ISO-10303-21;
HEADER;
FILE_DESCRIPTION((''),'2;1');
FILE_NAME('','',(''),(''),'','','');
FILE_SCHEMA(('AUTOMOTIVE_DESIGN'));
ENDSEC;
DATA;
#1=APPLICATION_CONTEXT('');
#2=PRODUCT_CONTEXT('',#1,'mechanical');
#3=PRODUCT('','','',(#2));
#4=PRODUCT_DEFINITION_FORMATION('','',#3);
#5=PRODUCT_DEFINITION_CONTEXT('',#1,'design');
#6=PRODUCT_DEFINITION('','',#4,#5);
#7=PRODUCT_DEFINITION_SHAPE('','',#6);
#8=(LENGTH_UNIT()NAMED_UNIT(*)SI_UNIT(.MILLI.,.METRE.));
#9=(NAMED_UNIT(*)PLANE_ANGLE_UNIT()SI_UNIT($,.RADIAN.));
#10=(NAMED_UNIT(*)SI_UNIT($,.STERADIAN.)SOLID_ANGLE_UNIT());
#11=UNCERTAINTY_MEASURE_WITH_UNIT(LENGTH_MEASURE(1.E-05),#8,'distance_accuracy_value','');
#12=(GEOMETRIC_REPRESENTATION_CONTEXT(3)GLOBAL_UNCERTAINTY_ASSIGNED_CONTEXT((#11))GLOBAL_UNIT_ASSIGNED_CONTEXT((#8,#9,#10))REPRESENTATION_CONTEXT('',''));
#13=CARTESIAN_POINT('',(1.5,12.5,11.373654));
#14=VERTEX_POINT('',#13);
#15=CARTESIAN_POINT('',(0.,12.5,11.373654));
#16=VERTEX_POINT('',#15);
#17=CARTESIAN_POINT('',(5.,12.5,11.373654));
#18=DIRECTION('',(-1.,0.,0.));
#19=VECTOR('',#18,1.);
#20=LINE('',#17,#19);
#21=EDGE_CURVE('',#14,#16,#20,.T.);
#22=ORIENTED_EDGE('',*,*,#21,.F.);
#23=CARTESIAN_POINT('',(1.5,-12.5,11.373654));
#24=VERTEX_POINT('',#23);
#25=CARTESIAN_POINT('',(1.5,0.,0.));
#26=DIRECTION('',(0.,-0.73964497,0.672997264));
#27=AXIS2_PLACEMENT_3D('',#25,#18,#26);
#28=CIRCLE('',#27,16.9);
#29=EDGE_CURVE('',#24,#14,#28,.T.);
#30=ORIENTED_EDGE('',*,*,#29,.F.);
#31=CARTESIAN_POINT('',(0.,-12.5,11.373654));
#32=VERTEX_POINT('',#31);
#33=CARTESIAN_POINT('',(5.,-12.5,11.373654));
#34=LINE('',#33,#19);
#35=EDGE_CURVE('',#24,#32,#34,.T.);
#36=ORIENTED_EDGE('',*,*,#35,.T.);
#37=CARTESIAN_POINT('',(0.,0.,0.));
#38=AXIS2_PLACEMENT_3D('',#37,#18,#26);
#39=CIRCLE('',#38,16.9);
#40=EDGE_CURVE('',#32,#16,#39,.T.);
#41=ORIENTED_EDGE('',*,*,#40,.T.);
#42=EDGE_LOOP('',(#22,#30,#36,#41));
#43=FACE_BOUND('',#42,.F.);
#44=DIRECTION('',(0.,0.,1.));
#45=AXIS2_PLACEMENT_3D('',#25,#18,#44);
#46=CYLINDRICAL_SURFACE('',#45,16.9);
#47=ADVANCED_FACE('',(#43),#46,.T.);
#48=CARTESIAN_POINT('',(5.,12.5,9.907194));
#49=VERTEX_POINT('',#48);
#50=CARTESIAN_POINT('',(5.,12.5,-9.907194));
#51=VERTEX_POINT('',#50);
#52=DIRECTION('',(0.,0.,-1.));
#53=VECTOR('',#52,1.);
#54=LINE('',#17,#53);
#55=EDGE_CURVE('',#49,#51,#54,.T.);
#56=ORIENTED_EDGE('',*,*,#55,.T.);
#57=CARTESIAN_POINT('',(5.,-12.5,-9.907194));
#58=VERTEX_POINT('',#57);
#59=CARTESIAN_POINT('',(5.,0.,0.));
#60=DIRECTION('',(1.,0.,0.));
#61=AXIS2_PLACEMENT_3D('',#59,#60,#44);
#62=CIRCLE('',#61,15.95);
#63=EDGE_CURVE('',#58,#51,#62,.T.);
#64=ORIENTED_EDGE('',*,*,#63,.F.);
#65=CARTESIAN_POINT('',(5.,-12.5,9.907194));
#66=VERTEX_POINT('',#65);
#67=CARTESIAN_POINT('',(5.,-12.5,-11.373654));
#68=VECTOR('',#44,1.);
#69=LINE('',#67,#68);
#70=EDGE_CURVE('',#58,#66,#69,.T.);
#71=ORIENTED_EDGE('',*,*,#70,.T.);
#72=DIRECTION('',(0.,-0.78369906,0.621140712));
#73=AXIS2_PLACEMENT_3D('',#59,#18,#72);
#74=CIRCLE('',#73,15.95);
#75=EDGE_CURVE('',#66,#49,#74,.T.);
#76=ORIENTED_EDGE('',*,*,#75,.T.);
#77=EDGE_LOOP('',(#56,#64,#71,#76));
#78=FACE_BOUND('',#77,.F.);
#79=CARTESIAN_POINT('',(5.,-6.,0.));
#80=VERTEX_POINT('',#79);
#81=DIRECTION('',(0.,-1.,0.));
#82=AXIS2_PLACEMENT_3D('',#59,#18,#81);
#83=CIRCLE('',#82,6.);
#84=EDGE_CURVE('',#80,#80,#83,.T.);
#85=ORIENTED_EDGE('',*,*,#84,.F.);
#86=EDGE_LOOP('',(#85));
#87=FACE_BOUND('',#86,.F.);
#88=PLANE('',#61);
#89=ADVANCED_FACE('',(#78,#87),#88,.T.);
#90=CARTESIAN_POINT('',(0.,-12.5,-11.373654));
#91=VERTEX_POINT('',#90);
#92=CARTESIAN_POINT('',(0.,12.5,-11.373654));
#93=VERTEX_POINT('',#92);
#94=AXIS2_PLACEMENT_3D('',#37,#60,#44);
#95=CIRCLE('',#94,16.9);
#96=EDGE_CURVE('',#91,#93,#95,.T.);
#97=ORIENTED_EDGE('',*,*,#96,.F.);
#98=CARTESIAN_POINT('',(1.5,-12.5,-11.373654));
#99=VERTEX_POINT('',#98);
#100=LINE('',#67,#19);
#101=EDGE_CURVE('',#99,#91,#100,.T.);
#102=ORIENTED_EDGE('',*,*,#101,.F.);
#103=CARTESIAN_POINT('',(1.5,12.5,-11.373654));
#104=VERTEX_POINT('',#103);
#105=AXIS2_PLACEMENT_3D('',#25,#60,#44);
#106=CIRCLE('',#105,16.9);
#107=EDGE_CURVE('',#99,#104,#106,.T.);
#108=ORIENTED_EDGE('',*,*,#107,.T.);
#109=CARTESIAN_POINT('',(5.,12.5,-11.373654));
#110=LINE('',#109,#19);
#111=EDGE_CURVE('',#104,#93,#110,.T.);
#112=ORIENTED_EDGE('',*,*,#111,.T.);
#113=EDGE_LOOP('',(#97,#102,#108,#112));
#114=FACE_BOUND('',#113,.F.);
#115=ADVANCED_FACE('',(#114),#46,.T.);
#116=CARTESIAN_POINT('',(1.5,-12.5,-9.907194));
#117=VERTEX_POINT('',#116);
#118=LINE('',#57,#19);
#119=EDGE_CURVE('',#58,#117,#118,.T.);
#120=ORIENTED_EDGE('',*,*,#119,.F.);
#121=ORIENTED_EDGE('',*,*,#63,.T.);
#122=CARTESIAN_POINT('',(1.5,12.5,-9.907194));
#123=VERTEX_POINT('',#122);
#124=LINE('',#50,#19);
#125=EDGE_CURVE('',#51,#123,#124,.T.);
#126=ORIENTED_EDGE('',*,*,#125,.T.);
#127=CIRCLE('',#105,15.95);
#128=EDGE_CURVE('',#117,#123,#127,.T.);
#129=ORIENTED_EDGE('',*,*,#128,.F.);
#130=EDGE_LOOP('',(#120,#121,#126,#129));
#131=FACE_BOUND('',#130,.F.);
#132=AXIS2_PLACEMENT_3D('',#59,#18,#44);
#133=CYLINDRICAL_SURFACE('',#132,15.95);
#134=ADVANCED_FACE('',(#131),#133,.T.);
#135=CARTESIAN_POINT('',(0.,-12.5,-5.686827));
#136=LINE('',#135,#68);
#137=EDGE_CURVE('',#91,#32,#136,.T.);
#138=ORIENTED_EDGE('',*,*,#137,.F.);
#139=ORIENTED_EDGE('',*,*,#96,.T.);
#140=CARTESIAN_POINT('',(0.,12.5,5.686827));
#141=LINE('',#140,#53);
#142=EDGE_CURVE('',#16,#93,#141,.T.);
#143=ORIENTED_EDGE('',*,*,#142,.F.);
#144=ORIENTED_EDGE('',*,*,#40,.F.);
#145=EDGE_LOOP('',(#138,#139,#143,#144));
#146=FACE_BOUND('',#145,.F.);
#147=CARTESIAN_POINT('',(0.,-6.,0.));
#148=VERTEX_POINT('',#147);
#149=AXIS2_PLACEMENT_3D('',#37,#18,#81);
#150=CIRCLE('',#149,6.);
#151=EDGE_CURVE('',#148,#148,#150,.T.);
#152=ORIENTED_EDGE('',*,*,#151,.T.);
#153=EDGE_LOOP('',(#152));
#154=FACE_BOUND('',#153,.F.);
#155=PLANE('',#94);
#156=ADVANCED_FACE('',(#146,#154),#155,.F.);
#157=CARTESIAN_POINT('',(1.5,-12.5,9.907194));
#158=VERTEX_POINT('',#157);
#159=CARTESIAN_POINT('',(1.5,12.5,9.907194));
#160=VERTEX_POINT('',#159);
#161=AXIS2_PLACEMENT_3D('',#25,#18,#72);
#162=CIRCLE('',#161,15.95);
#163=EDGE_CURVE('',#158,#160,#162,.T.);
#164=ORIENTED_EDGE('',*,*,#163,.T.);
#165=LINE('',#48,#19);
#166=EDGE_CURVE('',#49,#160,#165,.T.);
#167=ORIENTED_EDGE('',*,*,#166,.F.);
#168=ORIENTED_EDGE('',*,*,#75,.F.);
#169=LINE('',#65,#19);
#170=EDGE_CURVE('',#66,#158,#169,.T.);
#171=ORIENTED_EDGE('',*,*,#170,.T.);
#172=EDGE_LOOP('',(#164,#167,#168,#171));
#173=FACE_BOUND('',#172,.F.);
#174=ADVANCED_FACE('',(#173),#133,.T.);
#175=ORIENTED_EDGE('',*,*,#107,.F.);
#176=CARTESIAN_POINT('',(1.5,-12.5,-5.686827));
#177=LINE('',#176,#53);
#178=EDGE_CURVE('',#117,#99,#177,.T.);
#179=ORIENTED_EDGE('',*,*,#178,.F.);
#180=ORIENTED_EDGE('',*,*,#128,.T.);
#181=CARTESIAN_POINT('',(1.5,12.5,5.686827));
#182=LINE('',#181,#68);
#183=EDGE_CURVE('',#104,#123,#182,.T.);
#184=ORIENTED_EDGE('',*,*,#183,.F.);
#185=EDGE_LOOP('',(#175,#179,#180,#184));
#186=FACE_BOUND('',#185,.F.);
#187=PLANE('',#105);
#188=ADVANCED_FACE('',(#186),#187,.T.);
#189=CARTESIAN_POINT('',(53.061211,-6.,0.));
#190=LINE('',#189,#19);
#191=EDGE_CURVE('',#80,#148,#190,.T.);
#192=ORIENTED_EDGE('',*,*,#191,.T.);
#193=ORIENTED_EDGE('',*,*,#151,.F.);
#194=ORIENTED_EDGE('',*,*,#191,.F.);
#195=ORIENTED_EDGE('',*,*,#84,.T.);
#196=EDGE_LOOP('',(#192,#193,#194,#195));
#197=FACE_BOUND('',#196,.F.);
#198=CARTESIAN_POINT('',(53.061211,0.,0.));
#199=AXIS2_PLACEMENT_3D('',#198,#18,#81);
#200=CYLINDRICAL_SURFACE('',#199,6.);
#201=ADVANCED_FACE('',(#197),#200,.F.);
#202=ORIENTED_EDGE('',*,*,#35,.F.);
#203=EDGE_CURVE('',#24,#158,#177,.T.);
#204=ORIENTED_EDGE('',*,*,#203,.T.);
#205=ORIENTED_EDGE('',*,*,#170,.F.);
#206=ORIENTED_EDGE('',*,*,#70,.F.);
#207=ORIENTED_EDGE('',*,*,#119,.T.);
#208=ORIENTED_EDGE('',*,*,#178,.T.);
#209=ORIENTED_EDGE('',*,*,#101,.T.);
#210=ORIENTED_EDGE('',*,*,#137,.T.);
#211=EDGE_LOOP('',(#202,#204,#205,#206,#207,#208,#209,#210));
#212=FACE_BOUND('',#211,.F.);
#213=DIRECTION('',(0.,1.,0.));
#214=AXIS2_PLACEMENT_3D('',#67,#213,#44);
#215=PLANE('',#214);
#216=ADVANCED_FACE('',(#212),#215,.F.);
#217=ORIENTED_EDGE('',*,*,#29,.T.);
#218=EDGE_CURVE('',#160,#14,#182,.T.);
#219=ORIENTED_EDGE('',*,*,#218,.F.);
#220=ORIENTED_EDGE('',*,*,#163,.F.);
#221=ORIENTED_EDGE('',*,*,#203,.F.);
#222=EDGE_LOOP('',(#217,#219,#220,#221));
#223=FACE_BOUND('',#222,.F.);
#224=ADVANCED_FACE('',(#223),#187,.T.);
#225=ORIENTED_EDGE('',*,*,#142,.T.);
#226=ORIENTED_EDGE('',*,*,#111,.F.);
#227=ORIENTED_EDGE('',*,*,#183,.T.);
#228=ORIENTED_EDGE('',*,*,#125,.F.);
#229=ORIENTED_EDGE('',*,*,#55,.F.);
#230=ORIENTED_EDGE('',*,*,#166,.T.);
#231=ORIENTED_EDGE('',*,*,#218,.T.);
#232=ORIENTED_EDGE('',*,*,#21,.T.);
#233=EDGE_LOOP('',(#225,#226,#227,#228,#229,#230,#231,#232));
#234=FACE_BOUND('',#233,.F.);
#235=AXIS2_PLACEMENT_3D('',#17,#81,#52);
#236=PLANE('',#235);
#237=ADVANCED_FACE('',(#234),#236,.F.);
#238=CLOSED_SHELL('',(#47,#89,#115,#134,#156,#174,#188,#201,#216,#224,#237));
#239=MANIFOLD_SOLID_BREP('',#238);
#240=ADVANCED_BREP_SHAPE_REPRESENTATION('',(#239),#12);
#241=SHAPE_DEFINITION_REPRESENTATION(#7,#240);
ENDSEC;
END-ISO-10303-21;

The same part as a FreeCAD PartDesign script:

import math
import FreeCAD as App
import Part
import Sketcher
Q = App.Units.Quantity

doc = App.newDocument("Part")
body = doc.addObject("PartDesign::Body", "Body")

# Sketch on XZ plane
sketch1 = body.newObject("Sketcher::SketchObject", "Sketch")
sketch1.AttachmentSupport = (doc.getObject("XZ_Plane"), [""])
sketch1.MapMode = "FlatFace"
sketch1.addGeometry([
    Part.LineSegment(App.Vector(0, 16.9, 0), App.Vector(0, 0, 0)),  # 0
    Part.LineSegment(App.Vector(0, 0, 0), App.Vector(5, 0, 0)),  # 1
    Part.LineSegment(App.Vector(5, 0, 0), App.Vector(5, 15.9, 0)),  # 2
    Part.LineSegment(App.Vector(5, 15.9, 0), App.Vector(1.5, 15.9, 0)),  # 3
    Part.LineSegment(App.Vector(1.5, 15.9, 0), App.Vector(1.5, 16.9, 0)),  # 4
    Part.LineSegment(App.Vector(1.5, 16.9, 0), App.Vector(0, 16.9, 0)),  # 5
], False)
sketch1.addConstraint([
    Sketcher.Constraint("Coincident", 0, 2, 1, 1),
    Sketcher.Constraint("Coincident", 1, 2, 2, 1),
    Sketcher.Constraint("Coincident", 2, 2, 3, 1),
    Sketcher.Constraint("Coincident", 3, 2, 4, 1),
    Sketcher.Constraint("Coincident", 4, 2, 5, 1),
    Sketcher.Constraint("Coincident", 5, 2, 0, 1),
    Sketcher.Constraint("Vertical", 0),
    Sketcher.Constraint("Horizontal", 1),
    Sketcher.Constraint("Vertical", 2),
    Sketcher.Constraint("Horizontal", 3),
    Sketcher.Constraint("Vertical", 4),
    Sketcher.Constraint("Horizontal", 5),
    Sketcher.Constraint("Coincident", 0, 2, -1, 1),
    Sketcher.Constraint("DistanceX", 1, 1, 1, 2, Q("5 mm")),
    Sketcher.Constraint("DistanceX", 3, 2, 3, 1, Q("3.5 mm")),
    Sketcher.Constraint("DistanceY", 0, 2, 0, 1, Q("16.9 mm")),
    Sketcher.Constraint("DistanceY", 2, 1, 2, 2, Q("15.95 mm")),
])
revolution = body.newObject("PartDesign::Revolution", "Revolution")
revolution.Profile = sketch1
revolution.ReferenceAxis = (sketch1, ["H_Axis"])
revolution.Angle = 360

# Sketch on YZ plane
sketch2 = body.newObject("Sketcher::SketchObject", "Sketch001")
sketch2.AttachmentSupport = (doc.getObject("YZ_Plane"), [""])
sketch2.MapMode = "FlatFace"
sketch2.AttachmentOffset = App.Placement(App.Vector(0, 0, 5), App.Rotation())
sketch2.addGeometry(Part.Circle(App.Vector(0, 0, 0), App.Vector(0, 0, 1), 6), False)
sketch2.addConstraint([
    Sketcher.Constraint("Coincident", 0, 3, -1, 1),
    Sketcher.Constraint("Diameter", 0, Q("12 mm")),
])
doc.recompute()
hole = body.newObject("PartDesign::Hole", "Hole")
hole.Profile = sketch2
hole.ThreadType = "None"
hole.Diameter = 12
hole.DepthType = "ThroughAll"

# Sketch on YZ plane
sketch3 = body.newObject("Sketcher::SketchObject", "Sketch002")
sketch3.AttachmentSupport = (doc.getObject("YZ_Plane"), [""])
sketch3.MapMode = "FlatFace"
sketch3.AttachmentOffset = App.Placement(App.Vector(0, 0, 5), App.Rotation())
sketch3.addGeometry([
    Part.ArcOfCircle(Part.Circle(App.Vector(0, 0, 0), App.Vector(0, 0, 1), 17), math.radians(138), math.radians(222)),  # 0
    Part.LineSegment(App.Vector(-12, -11, 0), App.Vector(-12, 11, 0)),  # 1
    Part.ArcOfCircle(Part.Circle(App.Vector(0, 0, 0), App.Vector(0, 0, 1), 17), math.radians(-42), math.radians(0)),  # 2
    Part.ArcOfCircle(Part.Circle(App.Vector(0, 0, 0), App.Vector(0, 0, 1), 17), math.radians(0), math.radians(42)),  # 3
    Part.LineSegment(App.Vector(12, 11, 0), App.Vector(12, -11, 0)),  # 4
], False)
sketch3.addConstraint([
    Sketcher.Constraint("Coincident", 0, 1, 1, 2),
    Sketcher.Constraint("Coincident", 1, 1, 0, 2),
    Sketcher.Constraint("Tangent", 2, 2, 3, 1),
    Sketcher.Constraint("Coincident", 3, 2, 4, 1),
    Sketcher.Constraint("Coincident", 4, 2, 2, 1),
    Sketcher.Constraint("Vertical", 1),
    Sketcher.Constraint("Vertical", 4),
    Sketcher.Constraint("Coincident", 0, 3, -1, 1),
    Sketcher.Constraint("Coincident", 2, 3, -1, 1),
    Sketcher.Constraint("Equal", 0, 2),
    Sketcher.Constraint("Equal", 2, 3),
    Sketcher.Constraint("PointOnObject", 2, 2, -1),
    Sketcher.Constraint("Horizontal", 0, 1, 3, 2),
    Sketcher.Constraint("Radius", 0, Q("16.9 mm")),
    Sketcher.Constraint("DistanceX", 0, 1, 3, 2, Q("25 mm")),
])
pocket1 = body.newObject("PartDesign::Pocket", "Pocket")
pocket1.Profile = sketch3
pocket1.Length = 25

doc.recompute()
